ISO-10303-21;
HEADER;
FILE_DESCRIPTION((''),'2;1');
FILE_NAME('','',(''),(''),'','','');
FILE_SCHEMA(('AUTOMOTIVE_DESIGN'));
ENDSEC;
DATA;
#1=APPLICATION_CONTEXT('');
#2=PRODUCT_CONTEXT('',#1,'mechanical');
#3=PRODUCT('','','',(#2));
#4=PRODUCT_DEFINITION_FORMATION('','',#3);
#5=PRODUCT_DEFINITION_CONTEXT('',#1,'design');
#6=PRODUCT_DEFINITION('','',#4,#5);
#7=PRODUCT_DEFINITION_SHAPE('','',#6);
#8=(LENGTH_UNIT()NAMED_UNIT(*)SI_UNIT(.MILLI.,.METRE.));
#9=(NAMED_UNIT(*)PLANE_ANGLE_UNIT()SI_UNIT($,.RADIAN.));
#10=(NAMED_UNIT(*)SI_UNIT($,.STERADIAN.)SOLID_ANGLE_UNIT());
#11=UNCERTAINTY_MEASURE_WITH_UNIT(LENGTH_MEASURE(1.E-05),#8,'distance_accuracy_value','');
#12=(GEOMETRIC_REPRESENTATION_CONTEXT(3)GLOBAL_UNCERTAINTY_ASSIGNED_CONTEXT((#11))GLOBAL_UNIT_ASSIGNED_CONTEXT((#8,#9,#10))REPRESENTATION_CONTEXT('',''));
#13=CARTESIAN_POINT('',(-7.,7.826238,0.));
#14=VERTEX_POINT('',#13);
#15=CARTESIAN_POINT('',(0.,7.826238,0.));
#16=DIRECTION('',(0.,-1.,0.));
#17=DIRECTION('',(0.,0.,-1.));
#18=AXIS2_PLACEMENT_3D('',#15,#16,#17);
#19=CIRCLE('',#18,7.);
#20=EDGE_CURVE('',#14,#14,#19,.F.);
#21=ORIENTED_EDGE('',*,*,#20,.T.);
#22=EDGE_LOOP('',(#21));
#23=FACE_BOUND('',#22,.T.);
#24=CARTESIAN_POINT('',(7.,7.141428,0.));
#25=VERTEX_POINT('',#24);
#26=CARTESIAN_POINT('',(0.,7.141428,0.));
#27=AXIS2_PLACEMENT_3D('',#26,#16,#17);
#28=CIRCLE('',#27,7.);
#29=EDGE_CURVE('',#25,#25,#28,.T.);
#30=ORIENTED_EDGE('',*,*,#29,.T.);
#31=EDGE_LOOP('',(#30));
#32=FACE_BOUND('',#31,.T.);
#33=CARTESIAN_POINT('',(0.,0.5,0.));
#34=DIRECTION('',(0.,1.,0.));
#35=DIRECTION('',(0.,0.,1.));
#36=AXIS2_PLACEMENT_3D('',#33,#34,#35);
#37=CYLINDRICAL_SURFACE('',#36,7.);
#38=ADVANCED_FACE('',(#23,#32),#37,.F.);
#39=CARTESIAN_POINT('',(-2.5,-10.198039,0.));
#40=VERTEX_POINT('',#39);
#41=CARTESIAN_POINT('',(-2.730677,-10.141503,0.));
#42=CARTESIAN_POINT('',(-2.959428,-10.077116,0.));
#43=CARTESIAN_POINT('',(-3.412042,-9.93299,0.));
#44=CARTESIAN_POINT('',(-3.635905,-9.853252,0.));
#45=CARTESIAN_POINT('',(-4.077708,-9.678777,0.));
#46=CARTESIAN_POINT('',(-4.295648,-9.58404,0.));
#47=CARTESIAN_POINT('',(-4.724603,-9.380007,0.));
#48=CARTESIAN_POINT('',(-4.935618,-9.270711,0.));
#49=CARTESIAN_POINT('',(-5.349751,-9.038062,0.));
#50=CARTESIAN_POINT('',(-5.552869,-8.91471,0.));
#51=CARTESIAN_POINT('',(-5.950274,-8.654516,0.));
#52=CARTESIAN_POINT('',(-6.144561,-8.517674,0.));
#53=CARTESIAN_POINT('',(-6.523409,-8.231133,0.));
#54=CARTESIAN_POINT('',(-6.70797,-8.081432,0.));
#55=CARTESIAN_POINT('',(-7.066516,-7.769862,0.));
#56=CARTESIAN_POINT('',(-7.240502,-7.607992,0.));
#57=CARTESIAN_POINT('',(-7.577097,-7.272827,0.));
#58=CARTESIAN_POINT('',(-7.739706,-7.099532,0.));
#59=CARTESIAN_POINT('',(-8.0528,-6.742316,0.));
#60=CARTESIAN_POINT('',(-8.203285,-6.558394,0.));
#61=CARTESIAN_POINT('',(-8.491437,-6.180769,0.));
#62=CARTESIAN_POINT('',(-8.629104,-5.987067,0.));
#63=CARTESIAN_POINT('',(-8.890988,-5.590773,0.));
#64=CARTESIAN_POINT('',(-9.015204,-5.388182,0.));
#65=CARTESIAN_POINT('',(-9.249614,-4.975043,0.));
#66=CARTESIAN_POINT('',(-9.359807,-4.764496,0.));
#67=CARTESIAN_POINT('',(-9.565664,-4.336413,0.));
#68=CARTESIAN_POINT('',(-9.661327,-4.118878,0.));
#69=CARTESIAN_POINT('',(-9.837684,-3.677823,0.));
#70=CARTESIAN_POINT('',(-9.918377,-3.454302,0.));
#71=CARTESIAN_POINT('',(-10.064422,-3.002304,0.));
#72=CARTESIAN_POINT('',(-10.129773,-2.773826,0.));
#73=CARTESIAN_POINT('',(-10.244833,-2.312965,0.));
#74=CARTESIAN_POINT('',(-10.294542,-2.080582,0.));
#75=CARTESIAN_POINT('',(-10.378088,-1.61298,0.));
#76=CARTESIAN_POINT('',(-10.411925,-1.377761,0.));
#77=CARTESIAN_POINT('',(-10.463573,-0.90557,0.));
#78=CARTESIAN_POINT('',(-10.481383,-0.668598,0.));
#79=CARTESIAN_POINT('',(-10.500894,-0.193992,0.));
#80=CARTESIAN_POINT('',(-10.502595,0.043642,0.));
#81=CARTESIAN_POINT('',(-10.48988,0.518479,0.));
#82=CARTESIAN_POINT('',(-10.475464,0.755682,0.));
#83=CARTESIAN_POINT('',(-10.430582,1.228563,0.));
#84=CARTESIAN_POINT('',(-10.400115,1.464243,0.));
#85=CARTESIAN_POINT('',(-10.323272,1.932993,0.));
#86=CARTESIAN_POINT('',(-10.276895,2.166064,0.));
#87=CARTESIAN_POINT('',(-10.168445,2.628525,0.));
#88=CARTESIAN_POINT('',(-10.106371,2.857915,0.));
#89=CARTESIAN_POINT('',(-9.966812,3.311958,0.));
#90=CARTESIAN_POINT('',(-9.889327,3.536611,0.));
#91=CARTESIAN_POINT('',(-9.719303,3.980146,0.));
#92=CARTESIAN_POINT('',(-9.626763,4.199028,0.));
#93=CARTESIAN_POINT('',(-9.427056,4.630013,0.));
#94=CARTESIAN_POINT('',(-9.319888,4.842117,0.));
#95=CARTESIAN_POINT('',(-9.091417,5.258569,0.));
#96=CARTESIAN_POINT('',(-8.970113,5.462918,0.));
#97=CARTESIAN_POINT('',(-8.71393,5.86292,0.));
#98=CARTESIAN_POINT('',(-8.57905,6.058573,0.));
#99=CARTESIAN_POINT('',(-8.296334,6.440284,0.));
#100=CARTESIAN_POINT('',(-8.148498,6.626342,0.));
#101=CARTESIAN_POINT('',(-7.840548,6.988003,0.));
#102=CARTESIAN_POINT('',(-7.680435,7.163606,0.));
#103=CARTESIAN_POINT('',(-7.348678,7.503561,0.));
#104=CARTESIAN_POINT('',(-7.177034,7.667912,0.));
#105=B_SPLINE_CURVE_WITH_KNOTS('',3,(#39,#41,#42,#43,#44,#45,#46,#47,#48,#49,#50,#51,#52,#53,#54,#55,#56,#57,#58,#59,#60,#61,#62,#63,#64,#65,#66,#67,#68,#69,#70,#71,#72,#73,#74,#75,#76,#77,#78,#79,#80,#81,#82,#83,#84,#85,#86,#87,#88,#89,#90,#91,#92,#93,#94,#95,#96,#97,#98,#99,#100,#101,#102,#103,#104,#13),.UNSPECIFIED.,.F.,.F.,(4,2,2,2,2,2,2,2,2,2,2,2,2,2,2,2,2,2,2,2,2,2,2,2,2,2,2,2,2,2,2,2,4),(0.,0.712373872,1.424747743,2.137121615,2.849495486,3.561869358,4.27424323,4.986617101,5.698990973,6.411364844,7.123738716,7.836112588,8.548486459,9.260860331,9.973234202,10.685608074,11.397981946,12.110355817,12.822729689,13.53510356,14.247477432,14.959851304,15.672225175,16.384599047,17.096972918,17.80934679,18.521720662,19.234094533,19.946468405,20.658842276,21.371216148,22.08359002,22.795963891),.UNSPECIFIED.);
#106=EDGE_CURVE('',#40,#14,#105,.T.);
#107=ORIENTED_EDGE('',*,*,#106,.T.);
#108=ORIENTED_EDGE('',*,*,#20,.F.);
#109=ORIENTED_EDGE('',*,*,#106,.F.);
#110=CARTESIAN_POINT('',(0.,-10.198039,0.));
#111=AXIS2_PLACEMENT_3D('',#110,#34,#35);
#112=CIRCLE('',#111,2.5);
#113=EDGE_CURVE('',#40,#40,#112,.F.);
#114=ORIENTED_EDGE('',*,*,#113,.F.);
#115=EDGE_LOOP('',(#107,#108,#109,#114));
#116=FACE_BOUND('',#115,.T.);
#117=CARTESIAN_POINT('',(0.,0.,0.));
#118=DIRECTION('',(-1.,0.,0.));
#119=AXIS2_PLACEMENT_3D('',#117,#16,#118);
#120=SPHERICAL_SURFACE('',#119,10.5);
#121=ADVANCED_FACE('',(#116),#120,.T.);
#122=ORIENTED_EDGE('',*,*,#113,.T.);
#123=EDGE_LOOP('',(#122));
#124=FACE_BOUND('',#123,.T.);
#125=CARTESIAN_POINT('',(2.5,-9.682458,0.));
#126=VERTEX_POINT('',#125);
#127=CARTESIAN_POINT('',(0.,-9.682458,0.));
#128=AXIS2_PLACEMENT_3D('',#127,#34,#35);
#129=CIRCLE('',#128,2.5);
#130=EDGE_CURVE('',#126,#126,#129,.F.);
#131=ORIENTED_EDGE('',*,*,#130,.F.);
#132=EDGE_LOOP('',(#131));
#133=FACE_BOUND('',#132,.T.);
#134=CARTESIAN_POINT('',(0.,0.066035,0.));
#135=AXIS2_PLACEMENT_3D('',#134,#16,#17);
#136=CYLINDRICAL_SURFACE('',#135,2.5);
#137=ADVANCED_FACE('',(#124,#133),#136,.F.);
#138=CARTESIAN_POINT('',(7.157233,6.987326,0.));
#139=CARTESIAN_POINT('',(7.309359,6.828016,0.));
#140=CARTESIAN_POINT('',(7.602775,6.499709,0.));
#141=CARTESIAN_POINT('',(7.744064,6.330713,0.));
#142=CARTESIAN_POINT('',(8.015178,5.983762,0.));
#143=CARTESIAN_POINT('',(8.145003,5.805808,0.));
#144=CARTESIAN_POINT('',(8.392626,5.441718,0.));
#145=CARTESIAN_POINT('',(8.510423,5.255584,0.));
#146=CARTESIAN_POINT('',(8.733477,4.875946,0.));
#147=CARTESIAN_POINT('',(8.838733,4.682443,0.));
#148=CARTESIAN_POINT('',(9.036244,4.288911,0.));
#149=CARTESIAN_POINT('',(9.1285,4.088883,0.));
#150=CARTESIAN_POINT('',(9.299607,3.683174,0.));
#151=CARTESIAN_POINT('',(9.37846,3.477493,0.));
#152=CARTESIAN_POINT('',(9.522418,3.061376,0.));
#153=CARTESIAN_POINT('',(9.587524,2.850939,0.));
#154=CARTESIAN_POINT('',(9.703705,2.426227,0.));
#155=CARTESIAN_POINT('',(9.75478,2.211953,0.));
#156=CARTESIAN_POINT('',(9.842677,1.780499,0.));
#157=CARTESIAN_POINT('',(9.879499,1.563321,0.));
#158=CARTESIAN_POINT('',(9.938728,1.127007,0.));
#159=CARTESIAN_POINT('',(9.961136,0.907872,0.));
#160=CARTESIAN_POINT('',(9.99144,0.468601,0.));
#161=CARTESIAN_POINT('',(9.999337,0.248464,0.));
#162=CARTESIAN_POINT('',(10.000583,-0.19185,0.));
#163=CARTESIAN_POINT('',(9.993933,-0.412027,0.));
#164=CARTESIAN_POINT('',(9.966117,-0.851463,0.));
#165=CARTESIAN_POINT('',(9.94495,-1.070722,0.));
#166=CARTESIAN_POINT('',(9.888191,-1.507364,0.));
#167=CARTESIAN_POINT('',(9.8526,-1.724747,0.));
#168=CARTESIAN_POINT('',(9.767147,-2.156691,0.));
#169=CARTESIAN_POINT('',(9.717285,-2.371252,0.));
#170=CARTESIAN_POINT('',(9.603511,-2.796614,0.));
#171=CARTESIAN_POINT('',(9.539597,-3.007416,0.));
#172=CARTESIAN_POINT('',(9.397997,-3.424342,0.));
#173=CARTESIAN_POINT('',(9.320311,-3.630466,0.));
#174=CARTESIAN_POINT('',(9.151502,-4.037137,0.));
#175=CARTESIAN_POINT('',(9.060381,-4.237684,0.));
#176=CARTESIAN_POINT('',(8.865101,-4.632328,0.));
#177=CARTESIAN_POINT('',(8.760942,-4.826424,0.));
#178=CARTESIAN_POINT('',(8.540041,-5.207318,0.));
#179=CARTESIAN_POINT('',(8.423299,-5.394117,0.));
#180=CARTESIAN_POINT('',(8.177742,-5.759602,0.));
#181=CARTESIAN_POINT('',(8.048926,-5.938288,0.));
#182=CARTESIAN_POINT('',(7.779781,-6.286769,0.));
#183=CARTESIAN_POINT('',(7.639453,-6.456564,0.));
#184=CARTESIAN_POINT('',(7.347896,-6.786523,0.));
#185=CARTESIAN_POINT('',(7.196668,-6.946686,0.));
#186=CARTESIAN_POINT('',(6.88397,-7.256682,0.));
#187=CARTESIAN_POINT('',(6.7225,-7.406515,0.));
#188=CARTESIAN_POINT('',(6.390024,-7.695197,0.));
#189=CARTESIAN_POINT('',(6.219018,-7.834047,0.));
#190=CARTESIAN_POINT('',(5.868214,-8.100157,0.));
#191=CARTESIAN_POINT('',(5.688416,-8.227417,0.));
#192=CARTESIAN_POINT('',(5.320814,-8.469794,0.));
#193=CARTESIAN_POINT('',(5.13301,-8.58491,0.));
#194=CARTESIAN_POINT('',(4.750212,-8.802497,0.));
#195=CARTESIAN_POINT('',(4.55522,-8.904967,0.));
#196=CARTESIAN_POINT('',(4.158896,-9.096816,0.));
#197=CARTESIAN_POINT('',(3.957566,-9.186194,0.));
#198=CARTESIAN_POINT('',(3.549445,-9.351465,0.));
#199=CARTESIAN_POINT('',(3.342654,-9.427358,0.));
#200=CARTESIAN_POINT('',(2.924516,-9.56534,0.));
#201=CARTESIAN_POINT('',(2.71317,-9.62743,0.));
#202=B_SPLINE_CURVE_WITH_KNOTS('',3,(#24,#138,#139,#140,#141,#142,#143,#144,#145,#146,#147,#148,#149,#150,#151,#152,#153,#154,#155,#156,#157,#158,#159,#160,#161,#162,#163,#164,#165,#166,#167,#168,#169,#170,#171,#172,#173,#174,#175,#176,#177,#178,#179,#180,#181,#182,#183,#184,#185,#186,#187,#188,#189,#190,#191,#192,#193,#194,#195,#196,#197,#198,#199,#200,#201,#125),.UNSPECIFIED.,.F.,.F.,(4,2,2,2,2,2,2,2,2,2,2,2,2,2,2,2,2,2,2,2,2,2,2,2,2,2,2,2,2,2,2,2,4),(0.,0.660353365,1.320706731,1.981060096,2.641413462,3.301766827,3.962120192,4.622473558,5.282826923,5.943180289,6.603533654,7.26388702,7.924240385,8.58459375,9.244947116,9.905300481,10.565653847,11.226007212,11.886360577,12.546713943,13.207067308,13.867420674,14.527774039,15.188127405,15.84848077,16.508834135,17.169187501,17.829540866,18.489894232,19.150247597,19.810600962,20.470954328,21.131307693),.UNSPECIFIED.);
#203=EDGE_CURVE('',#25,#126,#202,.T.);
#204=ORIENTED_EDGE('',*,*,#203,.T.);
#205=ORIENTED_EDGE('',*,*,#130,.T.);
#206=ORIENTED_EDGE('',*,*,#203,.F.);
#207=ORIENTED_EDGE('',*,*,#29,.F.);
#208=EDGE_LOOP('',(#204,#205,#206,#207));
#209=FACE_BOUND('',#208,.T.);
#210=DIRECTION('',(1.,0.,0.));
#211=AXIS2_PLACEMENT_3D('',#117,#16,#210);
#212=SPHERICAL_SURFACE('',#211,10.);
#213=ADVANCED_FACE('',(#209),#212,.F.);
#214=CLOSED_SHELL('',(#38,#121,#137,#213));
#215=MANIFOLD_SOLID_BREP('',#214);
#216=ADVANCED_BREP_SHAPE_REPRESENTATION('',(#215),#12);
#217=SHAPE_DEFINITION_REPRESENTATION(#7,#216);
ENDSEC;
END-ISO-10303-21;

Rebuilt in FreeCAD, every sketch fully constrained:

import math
import FreeCAD as App
import Part
import Sketcher
Q = App.Units.Quantity

doc = App.newDocument("Part")
body = doc.addObject("PartDesign::Body", "Body")

# Sketch on XY plane
sketch1 = body.newObject("Sketcher::SketchObject", "Sketch")
sketch1.AttachmentSupport = (doc.getObject("XY_Plane"), [""])
sketch1.MapMode = "FlatFace"
sketch1.addGeometry(Part.LineSegment(App.Vector(0, -10, 0), App.Vector(0, -10.5, 0)), False)
sketch1.addGeometry(Part.ArcOfCircle(Part.Circle(App.Vector(0, 0, 0), App.Vector(0, 0, 1), 10.5), math.radians(-90), math.radians(90)), False)
sketch1.addGeometry(Part.LineSegment(App.Vector(0, 10.5, 0), App.Vector(0, 10, 0)), False)
sketch1.addGeometry(Part.ArcOfCircle(Part.Circle(App.Vector(0, 0, 0), App.Vector(0, 0, 1), 10), math.radians(-90), math.radians(90)), False)
sketch1.addConstraint(Sketcher.Constraint("Coincident", 0, 2, 1, 1))
sketch1.addConstraint(Sketcher.Constraint("Coincident", 1, 2, 2, 1))
sketch1.addConstraint(Sketcher.Constraint("Coincident", 2, 2, 3, 2))
sketch1.addConstraint(Sketcher.Constraint("Coincident", 3, 1, 0, 1))
sketch1.addConstraint(Sketcher.Constraint("Vertical", 0))
sketch1.addConstraint(Sketcher.Constraint("Vertical", 2))
sketch1.addConstraint(Sketcher.Constraint("Coincident", 1, 3, -1, 1))
sketch1.addConstraint(Sketcher.Constraint("Coincident", 3, 3, -1, 1))
sketch1.addConstraint(Sketcher.Constraint("PointOnObject", 0, 2, -2))
sketch1.addConstraint(Sketcher.Constraint("PointOnObject", 1, 2, -2))
sketch1.addConstraint(Sketcher.Constraint("Radius", 3, Q("10 mm")))
sketch1.addConstraint(Sketcher.Constraint("Radius", 1, Q("10.5 mm")))
revolution = body.newObject("PartDesign::Revolution", "Revolution")
revolution.Profile = sketch1
revolution.ReferenceAxis = (sketch1, ["V_Axis"])
revolution.Angle = 360

# Sketch on XZ plane
sketch2 = body.newObject("Sketcher::SketchObject", "Sketch001")
sketch2.AttachmentSupport = (doc.getObject("XZ_Plane"), [""])
sketch2.MapMode = "FlatFace"
sketch2.AttachmentOffset = App.Placement(App.Vector(0, 0, -10.5), App.Rotation())
sketch2.addGeometry(Part.Circle(App.Vector(0, 0, 0), App.Vector(0, 0, 1), 7), False)
sketch2.addConstraint(Sketcher.Constraint("Coincident", 0, 3, -1, 1))
sketch2.addConstraint(Sketcher.Constraint("Diameter", 0, Q("14 mm")))
pocket1 = body.newObject("PartDesign::Pocket", "Pocket")
pocket1.Profile = sketch2
pocket1.Length = 10
pocket1.Reversed = True

# Sketch on XZ plane
sketch3 = body.newObject("Sketcher::SketchObject", "Sketch002")
sketch3.AttachmentSupport = (doc.getObject("XZ_Plane"), [""])
sketch3.MapMode = "FlatFace"
sketch3.AttachmentOffset = App.Placement(App.Vector(0, 0, 9.933965), App.Rotation())
sketch3.addGeometry(Part.Circle(App.Vector(0, 0, 0), App.Vector(0, 0, 1), 2.5), False)
sketch3.addConstraint(Sketcher.Constraint("Coincident", 0, 3, -1, 1))
sketch3.addConstraint(Sketcher.Constraint("Diameter", 0, Q("5 mm")))
pocket2 = body.newObject("PartDesign::Pocket", "Pocket001")
pocket2.Profile = sketch3
pocket2.Length = 10

# Sketch on XZ plane
sketch4 = body.newObject("Sketcher::SketchObject", "Sketch003")
sketch4.AttachmentSupport = (doc.getObject("XZ_Plane"), [""])
sketch4.MapMode = "FlatFace"
sketch4.AttachmentOffset = App.Placement(App.Vector(0, 0, 19.933965), App.Rotation())
sketch4.addGeometry(Part.Circle(App.Vector(0, 0, 0), App.Vector(0, 0, 1), 2.5), False)
sketch4.addConstraint(Sketcher.Constraint("Coincident", 0, 3, -1, 1))
sketch4.addConstraint(Sketcher.Constraint("Diameter", 0, Q("5 mm")))
pocket3 = body.newObject("PartDesign::Pocket", "Pocket002")
pocket3.Profile = sketch4
pocket3.Length = 10

doc.recompute()
